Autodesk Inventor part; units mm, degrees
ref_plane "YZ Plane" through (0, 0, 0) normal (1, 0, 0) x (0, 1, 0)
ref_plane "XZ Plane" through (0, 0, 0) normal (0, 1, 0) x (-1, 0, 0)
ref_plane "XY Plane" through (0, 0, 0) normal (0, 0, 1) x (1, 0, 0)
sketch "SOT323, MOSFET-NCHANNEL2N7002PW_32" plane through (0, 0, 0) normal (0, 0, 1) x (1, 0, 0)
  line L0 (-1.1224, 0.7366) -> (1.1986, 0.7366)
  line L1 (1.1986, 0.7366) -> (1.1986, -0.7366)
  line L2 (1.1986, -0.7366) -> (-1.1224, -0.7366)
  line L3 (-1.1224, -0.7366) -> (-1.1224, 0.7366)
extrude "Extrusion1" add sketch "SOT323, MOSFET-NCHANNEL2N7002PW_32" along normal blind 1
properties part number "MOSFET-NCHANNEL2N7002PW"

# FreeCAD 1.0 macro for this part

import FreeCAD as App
import Part
import Sketcher

V = App.Vector


def add_polygon(sketch, points):
    """Adds a closed chain of lines whose ends are joined by coincident constraints."""
    first, n = sketch.GeometryCount, len(points)
    for a, b in zip(points, points[1:] + points[:1]):
        sketch.addGeometry(Part.LineSegment(App.Vector(*a, 0), App.Vector(*b, 0)), False)
    for i in range(n):
        sketch.addConstraint(Sketcher.Constraint("Coincident", first + i, 2, first + (i + 1) % n, 1))

doc = App.newDocument("Part")
body = doc.addObject("PartDesign::Body", "Body")

# Sketch on XY plane
sketch1 = doc.addObject("Sketcher::SketchObject", "Sketch")
body.addObject(sketch1)
sketch1.AttachmentSupport = (doc.XY_Plane, [""])
sketch1.MapMode = "FlatFace"
add_polygon(sketch1, [(1.2, 0.7), (-1.1, 0.7), (-1.1, -0.7), (1.2, -0.7)])  # lines 0-3
sketch1.addConstraint([
    Sketcher.Constraint("Horizontal", 0),
    Sketcher.Constraint("Vertical", 1),
    Sketcher.Constraint("Horizontal", 2),
    Sketcher.Constraint("Vertical", 3),
    Sketcher.Constraint("DistanceX", 0, 2, 0, 1, 2.321),
    Sketcher.Constraint("DistanceY", 1, 2, 1, 1, 1.4732),
    Sketcher.Constraint("DistanceX", 0, 2, -1, 1, 1.1224),
    Sketcher.Constraint("DistanceY", -1, 1, 0, 2, 0.7366),
])
pad1 = doc.addObject("PartDesign::Pad", "Pad")
body.addObject(pad1)
pad1.Profile = sketch1
pad1.Length = 1

doc.recompute()
